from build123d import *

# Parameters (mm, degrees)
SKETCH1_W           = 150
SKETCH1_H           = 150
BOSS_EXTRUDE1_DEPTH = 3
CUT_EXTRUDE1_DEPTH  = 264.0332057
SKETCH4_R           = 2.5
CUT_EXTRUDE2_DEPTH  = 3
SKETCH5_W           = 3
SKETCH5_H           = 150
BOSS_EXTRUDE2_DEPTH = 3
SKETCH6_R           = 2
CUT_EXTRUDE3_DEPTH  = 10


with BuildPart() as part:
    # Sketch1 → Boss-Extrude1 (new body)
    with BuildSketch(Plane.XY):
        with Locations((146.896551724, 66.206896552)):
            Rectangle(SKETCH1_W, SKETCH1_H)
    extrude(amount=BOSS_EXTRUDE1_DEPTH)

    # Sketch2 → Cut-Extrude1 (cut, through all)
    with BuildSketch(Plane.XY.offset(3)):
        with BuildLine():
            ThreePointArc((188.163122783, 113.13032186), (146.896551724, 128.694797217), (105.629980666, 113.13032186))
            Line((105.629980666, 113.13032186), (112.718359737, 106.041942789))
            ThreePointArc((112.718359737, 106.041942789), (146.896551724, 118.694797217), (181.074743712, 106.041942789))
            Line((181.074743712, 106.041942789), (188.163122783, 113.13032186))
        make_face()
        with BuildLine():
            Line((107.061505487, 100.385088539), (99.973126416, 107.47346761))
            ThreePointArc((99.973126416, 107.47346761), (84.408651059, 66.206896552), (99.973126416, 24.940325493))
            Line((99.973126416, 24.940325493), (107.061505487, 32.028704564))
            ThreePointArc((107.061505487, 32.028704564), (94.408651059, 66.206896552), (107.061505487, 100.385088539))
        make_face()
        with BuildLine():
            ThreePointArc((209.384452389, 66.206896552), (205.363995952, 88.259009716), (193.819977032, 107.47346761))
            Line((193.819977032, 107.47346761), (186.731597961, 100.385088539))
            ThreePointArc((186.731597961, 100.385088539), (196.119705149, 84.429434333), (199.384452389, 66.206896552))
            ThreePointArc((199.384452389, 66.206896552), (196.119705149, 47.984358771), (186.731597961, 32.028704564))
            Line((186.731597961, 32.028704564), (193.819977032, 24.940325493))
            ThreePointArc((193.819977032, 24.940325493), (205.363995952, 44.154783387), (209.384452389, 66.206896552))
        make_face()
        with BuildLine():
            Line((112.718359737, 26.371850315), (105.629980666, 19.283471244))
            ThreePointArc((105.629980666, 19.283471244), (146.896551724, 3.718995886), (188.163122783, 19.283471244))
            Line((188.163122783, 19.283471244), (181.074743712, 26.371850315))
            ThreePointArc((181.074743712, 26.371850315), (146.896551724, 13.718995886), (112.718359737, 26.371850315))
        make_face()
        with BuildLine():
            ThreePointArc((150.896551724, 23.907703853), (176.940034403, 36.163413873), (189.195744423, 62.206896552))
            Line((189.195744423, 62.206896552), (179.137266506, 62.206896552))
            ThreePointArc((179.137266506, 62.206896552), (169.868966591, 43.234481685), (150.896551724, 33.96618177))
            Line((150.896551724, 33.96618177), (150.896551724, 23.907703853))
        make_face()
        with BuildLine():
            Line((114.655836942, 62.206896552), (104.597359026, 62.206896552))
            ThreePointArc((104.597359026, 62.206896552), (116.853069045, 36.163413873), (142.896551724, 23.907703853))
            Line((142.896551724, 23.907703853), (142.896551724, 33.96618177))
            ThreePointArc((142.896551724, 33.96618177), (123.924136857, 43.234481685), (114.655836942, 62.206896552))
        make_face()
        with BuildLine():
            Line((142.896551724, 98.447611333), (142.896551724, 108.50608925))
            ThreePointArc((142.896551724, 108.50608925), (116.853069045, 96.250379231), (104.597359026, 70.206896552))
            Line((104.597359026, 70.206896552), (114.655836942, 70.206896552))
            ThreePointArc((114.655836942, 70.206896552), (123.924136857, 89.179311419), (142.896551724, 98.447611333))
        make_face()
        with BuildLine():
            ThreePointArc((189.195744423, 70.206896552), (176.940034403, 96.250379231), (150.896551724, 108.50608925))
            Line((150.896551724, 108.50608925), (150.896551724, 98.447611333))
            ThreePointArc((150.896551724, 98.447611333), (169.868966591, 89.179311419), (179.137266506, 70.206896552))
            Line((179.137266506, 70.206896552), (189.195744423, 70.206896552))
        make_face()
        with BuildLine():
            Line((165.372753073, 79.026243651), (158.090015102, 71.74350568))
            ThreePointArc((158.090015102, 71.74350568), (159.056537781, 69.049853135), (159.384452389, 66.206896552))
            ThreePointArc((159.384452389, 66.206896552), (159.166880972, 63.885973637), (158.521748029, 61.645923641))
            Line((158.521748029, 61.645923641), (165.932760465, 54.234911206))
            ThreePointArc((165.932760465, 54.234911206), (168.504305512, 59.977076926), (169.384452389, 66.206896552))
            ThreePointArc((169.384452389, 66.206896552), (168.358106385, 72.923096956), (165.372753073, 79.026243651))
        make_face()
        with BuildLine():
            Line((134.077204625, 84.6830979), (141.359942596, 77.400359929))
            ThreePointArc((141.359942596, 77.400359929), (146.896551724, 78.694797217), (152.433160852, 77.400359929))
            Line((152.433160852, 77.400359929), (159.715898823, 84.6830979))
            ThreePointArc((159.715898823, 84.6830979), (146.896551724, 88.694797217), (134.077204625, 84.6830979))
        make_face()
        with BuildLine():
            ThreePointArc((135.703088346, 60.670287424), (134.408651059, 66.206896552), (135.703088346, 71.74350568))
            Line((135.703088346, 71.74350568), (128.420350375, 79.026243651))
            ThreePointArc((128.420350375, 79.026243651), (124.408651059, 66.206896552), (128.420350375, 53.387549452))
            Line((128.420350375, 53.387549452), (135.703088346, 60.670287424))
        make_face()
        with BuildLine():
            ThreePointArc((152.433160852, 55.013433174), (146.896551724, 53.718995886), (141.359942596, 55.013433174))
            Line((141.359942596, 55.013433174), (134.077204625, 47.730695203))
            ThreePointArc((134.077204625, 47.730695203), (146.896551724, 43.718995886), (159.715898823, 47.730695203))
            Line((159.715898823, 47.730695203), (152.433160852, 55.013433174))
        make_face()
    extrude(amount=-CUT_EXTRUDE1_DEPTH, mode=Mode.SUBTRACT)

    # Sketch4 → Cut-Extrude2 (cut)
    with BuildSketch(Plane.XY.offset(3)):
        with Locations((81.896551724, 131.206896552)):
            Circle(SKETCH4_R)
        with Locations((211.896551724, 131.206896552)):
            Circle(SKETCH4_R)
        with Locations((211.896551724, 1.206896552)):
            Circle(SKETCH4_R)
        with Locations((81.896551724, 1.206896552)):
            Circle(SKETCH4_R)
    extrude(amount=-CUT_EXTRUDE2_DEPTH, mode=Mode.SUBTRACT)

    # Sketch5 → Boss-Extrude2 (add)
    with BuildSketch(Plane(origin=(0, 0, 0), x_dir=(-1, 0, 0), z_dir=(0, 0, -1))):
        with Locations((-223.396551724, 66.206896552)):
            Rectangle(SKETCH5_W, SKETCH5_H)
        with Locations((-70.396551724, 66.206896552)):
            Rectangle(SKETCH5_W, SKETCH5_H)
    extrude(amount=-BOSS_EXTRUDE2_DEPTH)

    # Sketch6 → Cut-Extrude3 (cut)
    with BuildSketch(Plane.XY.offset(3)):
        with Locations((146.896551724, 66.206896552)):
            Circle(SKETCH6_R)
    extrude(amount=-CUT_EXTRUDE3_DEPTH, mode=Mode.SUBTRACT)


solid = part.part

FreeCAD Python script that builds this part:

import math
import FreeCAD as App
import Part
import Sketcher

V = App.Vector
Q = App.Units.Quantity


def add_polygon(sketch, points):
    """Adds a closed chain of lines whose ends are joined by coincident constraints."""
    first, n = sketch.GeometryCount, len(points)
    for a, b in zip(points, points[1:] + points[:1]):
        sketch.addGeometry(Part.LineSegment(App.Vector(*a, 0), App.Vector(*b, 0)), False)
    for i in range(n):
        sketch.addConstraint(Sketcher.Constraint("Coincident", first + i, 2, first + (i + 1) % n, 1))

doc = App.newDocument("Part")
body = doc.addObject("PartDesign::Body", "Body")

sketch1 = body.newObject("Sketcher::SketchObject", "Sketch")
sketch1.AttachmentSupport = (doc.getObject("XY_Plane"), [""])
sketch1.MapMode = "FlatFace"
add_polygon(sketch1, [(72, 141), (72, -9), (222, -9), (222, 141)])
sketch1.addConstraint([
    Sketcher.Constraint("Vertical", 0),
    Sketcher.Constraint("Horizontal", 1),
    Sketcher.Constraint("Vertical", 2),
    Sketcher.Constraint("Horizontal", 3),
    Sketcher.Constraint("Equal", 3, 0),
    Sketcher.Constraint("DistanceX", 1, 1, 1, 2, Q("150 mm")),
    Sketcher.Constraint("DistanceX", -1, 1, 0, 2, Q("71.896552 mm")),
    Sketcher.Constraint("DistanceY", 0, 2, -1, 1, Q("8.793103 mm")),
])
pad1 = body.newObject("PartDesign::Pad", "Pad")
pad1.Profile = sketch1
pad1.Length = 3

sketch2 = body.newObject("Sketcher::SketchObject", "Sketch001")
sketch2.AttachmentSupport = (doc.getObject("XY_Plane"), [""])
sketch2.MapMode = "FlatFace"
sketch2.AttachmentOffset = App.Placement(V(0, 0, 3), App.Rotation())
sketch2.addGeometry([
    Part.ArcOfCircle(Part.Circle(V(146.896552, 66.206897, 0), V(0, 0, 1), 62.487901), math.radians(48.670149), math.radians(131.329851)),
    Part.LineSegment(V(105.629981, 113.130322, 0), V(112.71836, 106.041943, 0)),
    Part.ArcOfCircle(Part.Circle(V(146.896552, 66.206897, 0), V(0, 0, 1), 52.487901), math.radians(49.370637), math.radians(130.629363)),
    Part.LineSegment(V(181.074744, 106.041943, 0), V(188.163123, 113.130322, 0)),
    Part.LineSegment(V(107.061505, 100.385089, 0), V(99.973126, 107.473468, 0)),
    Part.ArcOfCircle(Part.Circle(V(146.896552, 66.206897, 0), V(0, 0, 1), 62.487901), math.radians(138.670149), math.radians(221.329851)),
    Part.LineSegment(V(99.973126, 24.940325, 0), V(107.061505, 32.028705, 0)),
    Part.ArcOfCircle(Part.Circle(V(146.896552, 66.206897, 0), V(0, 0, 1), 52.487901), math.radians(139.370637), math.radians(220.629363)),
    Part.ArcOfCircle(Part.Circle(V(146.896552, 66.206897, 0), V(0, 0, 1), 62.487901), math.radians(0), math.radians(41.329851)),
    Part.LineSegment(V(193.819977, 107.473468, 0), V(186.731598, 100.385089, 0)),
    Part.ArcOfCircle(Part.Circle(V(146.896552, 66.206897, 0), V(0, 0, 1), 52.487901), math.radians(0), math.radians(40.629363)),
    Part.ArcOfCircle(Part.Circle(V(146.896552, 66.206897, 0), V(0, 0, 1), 52.487901), math.radians(-40.629363), math.radians(0)),
    Part.LineSegment(V(186.731598, 32.028705, 0), V(193.819977, 24.940325, 0)),
    Part.ArcOfCircle(Part.Circle(V(146.896552, 66.206897, 0), V(0, 0, 1), 62.487901), math.radians(-41.329851), math.radians(0)),
    Part.LineSegment(V(112.71836, 26.37185, 0), V(105.629981, 19.283471, 0)),
    Part.ArcOfCircle(Part.Circle(V(146.896552, 66.206897, 0), V(0, 0, 1), 62.487901), math.radians(-131.329851), math.radians(-48.670149)),
    Part.LineSegment(V(188.163123, 19.283471, 0), V(181.074744, 26.37185, 0)),
    Part.ArcOfCircle(Part.Circle(V(146.896552, 66.206897, 0), V(0, 0, 1), 52.487901), math.radians(-130.629363), math.radians(-49.370637)),
    Part.ArcOfCircle(Part.Circle(V(146.896552, 66.206897, 0), V(0, 0, 1), 42.487901), math.radians(-84.59792), math.radians(-5.40208)),
    Part.LineSegment(V(189.195744, 62.206897, 0), V(179.137267, 62.206897, 0)),
    Part.ArcOfCircle(Part.Circle(V(146.896552, 66.206897, 0), V(0, 0, 1), 32.487901), math.radians(-82.92764), math.radians(-7.07236)),
    Part.LineSegment(V(150.896552, 33.966182, 0), V(150.896552, 23.907704, 0)),
    Part.LineSegment(V(114.655837, 62.206897, 0), V(104.597359, 62.206897, 0)),
    Part.ArcOfCircle(Part.Circle(V(146.896552, 66.206897, 0), V(0, 0, 1), 42.487901), math.radians(-174.59792), math.radians(-95.40208)),
    Part.LineSegment(V(142.896552, 23.907704, 0), V(142.896552, 33.966182, 0)),
    Part.ArcOfCircle(Part.Circle(V(146.896552, 66.206897, 0), V(0, 0, 1), 32.487901), math.radians(-172.92764), math.radians(-97.07236)),
    Part.LineSegment(V(142.896552, 98.447611, 0), V(142.896552, 108.506089, 0)),
    Part.ArcOfCircle(Part.Circle(V(146.896552, 66.206897, 0), V(0, 0, 1), 42.487901), math.radians(95.40208), math.radians(174.59792)),
    Part.LineSegment(V(104.597359, 70.206897, 0), V(114.655837, 70.206897, 0)),
    Part.ArcOfCircle(Part.Circle(V(146.896552, 66.206897, 0), V(0, 0, 1), 32.487901), math.radians(97.07236), math.radians(172.92764)),
    Part.ArcOfCircle(Part.Circle(V(146.896552, 66.206897, 0), V(0, 0, 1), 42.487901), math.radians(5.40208), math.radians(84.59792)),
    Part.LineSegment(V(150.896552, 108.506089, 0), V(150.896552, 98.447611, 0)),
    Part.ArcOfCircle(Part.Circle(V(146.896552, 66.206897, 0), V(0, 0, 1), 32.487901), math.radians(7.07236), math.radians(82.92764)),
    Part.LineSegment(V(179.137267, 70.206897, 0), V(189.195744, 70.206897, 0)),
    Part.LineSegment(V(165.372753, 79.026244, 0), V(158.090015, 71.743506, 0)),
    Part.ArcOfCircle(Part.Circle(V(146.896552, 66.206897, 0), V(0, 0, 1), 12.487901), math.radians(0), math.radians(26.318324)),
    Part.ArcOfCircle(Part.Circle(V(146.896552, 66.206897, 0), V(0, 0, 1), 12.487901), math.radians(-21.421822), math.radians(0)),
    Part.LineSegment(V(158.521748, 61.645924, 0), V(165.93276, 54.234911, 0)),
    Part.ArcOfCircle(Part.Circle(V(146.896552, 66.206897, 0), V(0, 0, 1), 22.487901), math.radians(-32.166032), math.radians(0)),
    Part.ArcOfCircle(Part.Circle(V(146.896552, 66.206897, 0), V(0, 0, 1), 22.487901), math.radians(0), math.radians(34.754083)),
    Part.LineSegment(V(134.077205, 84.683098, 0), V(141.359943, 77.40036, 0)),
    Part.ArcOfCircle(Part.Circle(V(146.896552, 66.206897, 0), V(0, 0, 1), 12.487901), math.radians(63.681676), math.radians(116.318324)),
    Part.LineSegment(V(152.433161, 77.40036, 0), V(159.715899, 84.683098, 0)),
    Part.ArcOfCircle(Part.Circle(V(146.896552, 66.206897, 0), V(0, 0, 1), 22.487901), math.radians(55.245917), math.radians(124.754083)),
    Part.ArcOfCircle(Part.Circle(V(146.896552, 66.206897, 0), V(0, 0, 1), 12.487901), math.radians(153.681676), math.radians(206.318324)),
    Part.LineSegment(V(135.703088, 71.743506, 0), V(128.42035, 79.026244, 0)),
    Part.ArcOfCircle(Part.Circle(V(146.896552, 66.206897, 0), V(0, 0, 1), 22.487901), math.radians(145.245917), math.radians(214.754083)),
    Part.LineSegment(V(128.42035, 53.387549, 0), V(135.703088, 60.670287, 0)),
    Part.ArcOfCircle(Part.Circle(V(146.896552, 66.206897, 0), V(0, 0, 1), 12.487901), math.radians(-116.318324), math.radians(-63.681676)),
    Part.LineSegment(V(141.359943, 55.013433, 0), V(134.077205, 47.730695, 0)),
    Part.ArcOfCircle(Part.Circle(V(146.896552, 66.206897, 0), V(0, 0, 1), 22.487901), math.radians(-124.754083), math.radians(-55.245917)),
    Part.LineSegment(V(159.715899, 47.730695, 0), V(152.433161, 55.013433, 0)),
], False)
sketch2.addConstraint([
    Sketcher.Constraint("Coincident", 0, 2, 1, 1),
    Sketcher.Constraint("Coincident", 1, 2, 2, 2),
    Sketcher.Constraint("Coincident", 2, 1, 3, 1),
    Sketcher.Constraint("Coincident", 3, 2, 0, 1),
    Sketcher.Constraint("Coincident", 4, 2, 5, 1),
    Sketcher.Constraint("Coincident", 5, 2, 6, 1),
    Sketcher.Constraint("Coincident", 6, 2, 7, 2),
    Sketcher.Constraint("Coincident", 7, 1, 4, 1),
    Sketcher.Constraint("Coincident", 8, 2, 9, 1),
    Sketcher.Constraint("Coincident", 9, 2, 10, 2),
    Sketcher.Constraint("Coincident", 10, 1, 11, 2),
    Sketcher.Constraint("Coincident", 11, 1, 12, 1),
    Sketcher.Constraint("Coincident", 12, 2, 13, 1),
    Sketcher.Constraint("Coincident", 13, 2, 8, 1),
    Sketcher.Constraint("Coincident", 14, 2, 15, 1),
    Sketcher.Constraint("Coincident", 15, 2, 16, 1),
    Sketcher.Constraint("Coincident", 16, 2, 17, 2),
    Sketcher.Constraint("Coincident", 17, 1, 14, 1),
    Sketcher.Constraint("Coincident", 18, 2, 19, 1),
    Sketcher.Constraint("Coincident", 19, 2, 20, 2),
    Sketcher.Constraint("Coincident", 20, 1, 21, 1),
    Sketcher.Constraint("Coincident", 21, 2, 18, 1),
    Sketcher.Constraint("Coincident", 22, 2, 23, 1),
    Sketcher.Constraint("Coincident", 23, 2, 24, 1),
    Sketcher.Constraint("Coincident", 24, 2, 25, 2),
    Sketcher.Constraint("Coincident", 25, 1, 22, 1),
    Sketcher.Constraint("Coincident", 26, 2, 27, 1),
    Sketcher.Constraint("Coincident", 27, 2, 28, 1),
    Sketcher.Constraint("Coincident", 28, 2, 29, 2),
    Sketcher.Constraint("Coincident", 29, 1, 26, 1),
    Sketcher.Constraint("Coincident", 30, 2, 31, 1),
    Sketcher.Constraint("Coincident", 31, 2, 32, 2),
    Sketcher.Constraint("Coincident", 32, 1, 33, 1),
    Sketcher.Constraint("Coincident", 33, 2, 30, 1),
    Sketcher.Constraint("Coincident", 34, 2, 35, 2),
    Sketcher.Constraint("Coincident", 35, 1, 36, 2),
    Sketcher.Constraint("Coincident", 36, 1, 37, 1),
    Sketcher.Constraint("Coincident", 37, 2, 38, 1),
    Sketcher.Constraint("Coincident", 38, 2, 39, 1),
    Sketcher.Constraint("Coincident", 39, 2, 34, 1),
    Sketcher.Constraint("Coincident", 40, 2, 41, 2),
    Sketcher.Constraint("Coincident", 41, 1, 42, 1),
    Sketcher.Constraint("Coincident", 42, 2, 43, 1),
    Sketcher.Constraint("Coincident", 43, 2, 40, 1),
    Sketcher.Constraint("Coincident", 44, 1, 45, 1),
    Sketcher.Constraint("Coincident", 45, 2, 46, 1),
    Sketcher.Constraint("Coincident", 46, 2, 47, 1),
    Sketcher.Constraint("Coincident", 47, 2, 44, 2),
    Sketcher.Constraint("Coincident", 48, 1, 49, 1),
    Sketcher.Constraint("Coincident", 49, 2, 50, 1),
    Sketcher.Constraint("Coincident", 50, 2, 51, 1),
    Sketcher.Constraint("Coincident", 51, 2, 48, 2),
    Sketcher.Constraint("Horizontal", 19),
    Sketcher.Constraint("Vertical", 21),
    Sketcher.Constraint("Horizontal", 22),
    Sketcher.Constraint("Vertical", 24),
    Sketcher.Constraint("Vertical", 26),
    Sketcher.Constraint("Horizontal", 28),
    Sketcher.Constraint("Vertical", 31),
    Sketcher.Constraint("Horizontal", 33),
    Sketcher.Constraint("Coincident", 2, 3, 0, 3),
    Sketcher.Constraint("Coincident", 5, 3, 0, 3),
    Sketcher.Constraint("Coincident", 7, 3, 0, 3),
    Sketcher.Constraint("Coincident", 8, 3, 0, 3),
    Sketcher.Constraint("Coincident", 10, 3, 0, 3),
    Sketcher.Constraint("Coincident", 11, 3, 0, 3),
    Sketcher.Constraint("Coincident", 13, 3, 0, 3),
    Sketcher.Constraint("Coincident", 15, 3, 0, 3),
    Sketcher.Constraint("Coincident", 17, 3, 0, 3),
    Sketcher.Constraint("Coincident", 18, 3, 0, 3),
    Sketcher.Constraint("Coincident", 20, 3, 0, 3),
    Sketcher.Constraint("Coincident", 23, 3, 0, 3),
    Sketcher.Constraint("Coincident", 25, 3, 0, 3),
    Sketcher.Constraint("Coincident", 27, 3, 0, 3),
    Sketcher.Constraint("Coincident", 29, 3, 0, 3),
    Sketcher.Constraint("Coincident", 30, 3, 0, 3),
    Sketcher.Constraint("Coincident", 32, 3, 0, 3),
    Sketcher.Constraint("Coincident", 35, 3, 0, 3),
    Sketcher.Constraint("Coincident", 36, 3, 0, 3),
    Sketcher.Constraint("Coincident", 38, 3, 0, 3),
    Sketcher.Constraint("Coincident", 39, 3, 0, 3),
    Sketcher.Constraint("Coincident", 41, 3, 0, 3),
    Sketcher.Constraint("Coincident", 43, 3, 0, 3),
    Sketcher.Constraint("Coincident", 44, 3, 0, 3),
    Sketcher.Constraint("Coincident", 46, 3, 0, 3),
    Sketcher.Constraint("Coincident", 48, 3, 0, 3),
    Sketcher.Constraint("Coincident", 50, 3, 0, 3),
    Sketcher.Constraint("Radius", 0, Q("62.487901 mm")),
    Sketcher.Constraint("Radius", 2, Q("52.487901 mm")),
    Sketcher.Constraint("Radius", 5, Q("62.487901 mm")),
    Sketcher.Constraint("Radius", 7, Q("52.487901 mm")),
    Sketcher.Constraint("Radius", 8, Q("62.487901 mm")),
    Sketcher.Constraint("Radius", 10, Q("52.487901 mm")),
    Sketcher.Constraint("Radius", 15, Q("62.487901 mm")),
    Sketcher.Constraint("Radius", 17, Q("52.487901 mm")),
    Sketcher.Constraint("Radius", 18, Q("42.487901 mm")),
    Sketcher.Constraint("Radius", 20, Q("32.487901 mm")),
    Sketcher.Constraint("Radius", 23, Q("42.487901 mm")),
    Sketcher.Constraint("Radius", 25, Q("32.487901 mm")),
    Sketcher.Constraint("Radius", 27, Q("42.487901 mm")),
    Sketcher.Constraint("Radius", 29, Q("32.487901 mm")),
    Sketcher.Constraint("Radius", 30, Q("42.487901 mm")),
    Sketcher.Constraint("Radius", 32, Q("32.487901 mm")),
    Sketcher.Constraint("Radius", 35, Q("12.487901 mm")),
    Sketcher.Constraint("Radius", 38, Q("22.487901 mm")),
    Sketcher.Constraint("Radius", 41, Q("12.487901 mm")),
    Sketcher.Constraint("Radius", 43, Q("22.487901 mm")),
    Sketcher.Constraint("Radius", 44, Q("12.487901 mm")),
    Sketcher.Constraint("Radius", 46, Q("22.487901 mm")),
    Sketcher.Constraint("Radius", 48, Q("12.487901 mm")),
    Sketcher.Constraint("Radius", 50, Q("22.487901 mm")),
    Sketcher.Constraint("DistanceX", -1, 1, 42, 2, Q("159.715899 mm")),
    Sketcher.Constraint("DistanceX", -1, 1, 50, 2, Q("159.715899 mm")),
    Sketcher.Constraint("Distance", 1, Q("10.024482 mm")),
    Sketcher.Constraint("Distance", 3, Q("10.024482 mm")),
    Sketcher.Constraint("Distance", 4, Q("10.024482 mm")),
    Sketcher.Constraint("Distance", 6, Q("10.024482 mm")),
    Sketcher.Constraint("Distance", 9, Q("10.024482 mm")),
    Sketcher.Constraint("Distance", 12, Q("10.024482 mm")),
    Sketcher.Constraint("Distance", 14, Q("10.024482 mm")),
    Sketcher.Constraint("Distance", 16, Q("10.024482 mm")),
    Sketcher.Constraint("DistanceX", 19, 2, 19, 1, Q("10.058478 mm")),
    Sketcher.Constraint("DistanceX", 22, 2, 22, 1, Q("10.058478 mm")),
    Sketcher.Constraint("DistanceX", 28, 1, 28, 2, Q("10.058478 mm")),
    Sketcher.Constraint("DistanceX", 33, 1, 33, 2, Q("10.058478 mm")),
    Sketcher.Constraint("DistanceY", 21, 2, 21, 1, Q("10.058478 mm")),
    Sketcher.Constraint("DistanceY", 24, 1, 24, 2, Q("10.058478 mm")),
    Sketcher.Constraint("DistanceY", 26, 1, 26, 2, Q("10.058478 mm")),
    Sketcher.Constraint("DistanceY", 31, 2, 31, 1, Q("10.058478 mm")),
    Sketcher.Constraint("DistanceX", -1, 1, 0, 3, Q("146.896552 mm")),
    Sketcher.Constraint("DistanceX", -1, 1, 0, 2, Q("105.629981 mm")),
    Sketcher.Constraint("DistanceY", -1, 1, 0, 2, Q("113.130322 mm")),
    Sketcher.Constraint("DistanceY", -1, 1, 3, 2, Q("113.130322 mm")),
    Sketcher.Constraint("DistanceY", -1, 1, 7, 1, Q("100.385089 mm")),
    Sketcher.Constraint("DistanceY", -1, 1, 9, 2, Q("100.385089 mm")),
    Sketcher.Constraint("DistanceX", -1, 1, 14, 2, Q("105.629981 mm")),
    Sketcher.Constraint("DistanceY", -1, 1, 15, 2, Q("19.283471 mm")),
    Sketcher.Constraint("DistanceX", -1, 1, 36, 1, Q("158.521748 mm")),
    Sketcher.Constraint("DistanceX", -1, 1, 37, 2, Q("165.93276 mm")),
    Sketcher.Constraint("DistanceY", -1, 1, 40, 2, Q("77.40036 mm")),
    Sketcher.Constraint("DistanceX", -1, 1, 41, 1, Q("152.433161 mm")),
    Sketcher.Constraint("DistanceX", -1, 1, 44, 1, Q("135.703088 mm")),
    Sketcher.Constraint("DistanceX", -1, 1, 45, 2, Q("128.42035 mm")),
    Sketcher.Constraint("DistanceX", -1, 1, 46, 2, Q("128.42035 mm")),
    Sketcher.Constraint("DistanceX", -1, 1, 47, 2, Q("135.703088 mm")),
    Sketcher.Constraint("DistanceX", -1, 1, 51, 2, Q("152.433161 mm")),
    Sketcher.Constraint("Distance", 34, Q("10.299347 mm")),
    Sketcher.Constraint("Distance", 40, Q("10.299347 mm")),
    Sketcher.Constraint("Distance", 49, Q("10.299347 mm")),
    Sketcher.Constraint("DistanceX", -1, 1, 5, 2, Q("99.973126 mm")),
    Sketcher.Constraint("DistanceY", -1, 1, 10, 1, Q("66.206897 mm")),
    Sketcher.Constraint("DistanceX", -1, 1, 11, 1, Q("186.731598 mm")),
    Sketcher.Constraint("DistanceY", -1, 1, 13, 2, Q("66.206897 mm")),
    Sketcher.Constraint("DistanceX", -1, 1, 34, 2, Q("158.090015 mm")),
    Sketcher.Constraint("DistanceY", -1, 1, 35, 1, Q("66.206897 mm")),
    Sketcher.Constraint("DistanceY", -1, 1, 38, 2, Q("66.206897 mm")),
    Sketcher.Constraint("DistanceX", -1, 1, 48, 1, Q("141.359943 mm")),
])
pocket1 = body.newObject("PartDesign::Pocket", "Pocket")
pocket1.Profile = sketch2
pocket1.Type = "ThroughAll"

sketch3 = body.newObject("Sketcher::SketchObject", "Sketch002")
sketch3.AttachmentSupport = (doc.getObject("XY_Plane"), [""])
sketch3.MapMode = "FlatFace"
sketch3.AttachmentOffset = App.Placement(V(0, 0, 3), App.Rotation())
sketch3.addGeometry([
    Part.Circle(V(81.9, 131.2, 0), V(0, 0, 1), 2.5),
    Part.Circle(V(211.9, 131.2, 0), V(0, 0, 1), 2.5),
    Part.Circle(V(211.9, 1.2, 0), V(0, 0, 1), 2.5),
    Part.Circle(V(81.9, 1.2, 0), V(0, 0, 1), 2.5),
], False)
sketch3.addConstraint([
    Sketcher.Constraint("Equal", 0, 1),
    Sketcher.Constraint("Equal", 1, 2),
    Sketcher.Constraint("Equal", 2, 3),
    Sketcher.Constraint("Horizontal", 0, 3, 1, 3),
    Sketcher.Constraint("Horizontal", 2, 3, 3, 3),
    Sketcher.Constraint("Vertical", 1, 3, 2, 3),
    Sketcher.Constraint("Vertical", 0, 3, 3, 3),
    Sketcher.Constraint("Diameter", 0, Q("5 mm")),
    Sketcher.Constraint("DistanceX", 0, 3, 1, 3, Q("130 mm")),
    Sketcher.Constraint("DistanceY", 2, 3, 1, 3, Q("130 mm")),
    Sketcher.Constraint("DistanceX", -1, 1, 0, 3, Q("81.896552 mm")),
    Sketcher.Constraint("DistanceY", -1, 1, 0, 3, Q("131.206897 mm")),
])
pocket2 = body.newObject("PartDesign::Pocket", "Pocket001")
pocket2.Profile = sketch3
pocket2.Length = 3

sketch4 = body.newObject("Sketcher::SketchObject", "Sketch003")
sketch4.AttachmentSupport = (doc.getObject("XY_Plane"), [""])
sketch4.MapMode = "FlatFace"
add_polygon(sketch4, [(224.9, 141.2), (224.9, -8.8), (221.9, -8.8), (221.9, 141.2)])
add_polygon(sketch4, [(71.9, 141.2), (71.9, -8.8), (68.9, -8.8), (68.9, 141.2)])
sketch4.addConstraint([
    Sketcher.Constraint("Vertical", 0),
    Sketcher.Constraint("Horizontal", 1),
    Sketcher.Constraint("Vertical", 2),
    Sketcher.Constraint("Horizontal", 3),
    Sketcher.Constraint("Vertical", 4),
    Sketcher.Constraint("Horizontal", 5),
    Sketcher.Constraint("Vertical", 6),
    Sketcher.Constraint("Horizontal", 7),
    Sketcher.Constraint("Horizontal", 1, 2, 4, 2),
    Sketcher.Constraint("Horizontal", 3, 2, 6, 2),
    Sketcher.Constraint("Equal", 3, 5),
    Sketcher.Constraint("DistanceX", 1, 2, 1, 1, Q("3 mm")),
    Sketcher.Constraint("DistanceY", 0, 2, 0, 1, Q("150 mm")),
    Sketcher.Constraint("DistanceX", 4, 2, 1, 2, Q("150 mm")),
    Sketcher.Constraint("DistanceX", -1, 1, 0, 2, Q("224.896552 mm")),
    Sketcher.Constraint("DistanceY", 0, 2, -1, 1, Q("8.793103 mm")),
])
pad2 = body.newObject("PartDesign::Pad", "Pad001")
pad2.Profile = sketch4
pad2.Length = 3

sketch5 = body.newObject("Sketcher::SketchObject", "Sketch004")
sketch5.AttachmentSupport = (doc.getObject("XY_Plane"), [""])
sketch5.MapMode = "FlatFace"
sketch5.AttachmentOffset = App.Placement(V(0, 0, 3), App.Rotation())
sketch5.addGeometry(Part.Circle(V(146.9, 66.2, 0), V(0, 0, 1), 2), False)
sketch5.addConstraint([
    Sketcher.Constraint("Diameter", 0, Q("4 mm")),
    Sketcher.Constraint("DistanceX", -1, 1, 0, 3, Q("146.896552 mm")),
    Sketcher.Constraint("DistanceY", -1, 1, 0, 3, Q("66.206897 mm")),
])
pocket3 = body.newObject("PartDesign::Pocket", "Pocket002")
pocket3.Profile = sketch5
pocket3.Length = 10

doc.recompute()
